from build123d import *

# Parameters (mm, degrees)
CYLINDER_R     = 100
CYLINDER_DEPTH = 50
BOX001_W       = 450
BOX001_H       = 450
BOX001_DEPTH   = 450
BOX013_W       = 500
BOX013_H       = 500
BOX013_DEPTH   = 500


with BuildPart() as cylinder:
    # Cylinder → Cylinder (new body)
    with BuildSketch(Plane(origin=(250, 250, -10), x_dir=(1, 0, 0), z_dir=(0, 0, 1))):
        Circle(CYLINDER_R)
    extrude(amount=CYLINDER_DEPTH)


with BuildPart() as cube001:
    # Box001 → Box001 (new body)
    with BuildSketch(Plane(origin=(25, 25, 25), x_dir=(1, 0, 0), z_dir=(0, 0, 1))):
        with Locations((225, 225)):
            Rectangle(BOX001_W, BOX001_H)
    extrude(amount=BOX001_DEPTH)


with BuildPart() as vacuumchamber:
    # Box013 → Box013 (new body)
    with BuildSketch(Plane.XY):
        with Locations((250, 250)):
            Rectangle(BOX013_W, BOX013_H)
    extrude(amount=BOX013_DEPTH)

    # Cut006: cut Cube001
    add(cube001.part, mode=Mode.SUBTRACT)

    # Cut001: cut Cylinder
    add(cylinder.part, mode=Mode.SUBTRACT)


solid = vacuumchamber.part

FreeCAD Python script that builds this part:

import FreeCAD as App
import Part
import Sketcher
from FreeCAD import Vector

doc = App.newDocument("Part")
body = doc.addObject("PartDesign::Body", "Body")

sketch1 = body.newObject("Sketcher::SketchObject", "Sketch")
sketch1.AttachmentSupport = (doc.getObject("XY_Plane"), [""])
sketch1.MapMode = "FlatFace"
sketch1.AttachmentOffset = App.Placement(Vector(0, 0, -10), App.Rotation())
sketch1.addGeometry(Part.Circle(Vector(250, 250, 0), Vector(0, 0, 1), 100), False)
sketch1.addConstraint([
    Sketcher.Constraint("Diameter", 0, 200.0),
    Sketcher.Constraint("DistanceX", -1, 1, 0, 3, 250.0),
    Sketcher.Constraint("DistanceY", -1, 1, 0, 3, 250.0),
])
pad1 = body.newObject("PartDesign::Pad", "Pad")
pad1.Profile = sketch1
pad1.Length = 50
body2 = doc.addObject("PartDesign::Body", "Body001")

sketch2 = body2.newObject("Sketcher::SketchObject", "Sketch001")
sketch2.AttachmentSupport = (doc.getObject("XY_Plane001"), [""])
sketch2.MapMode = "FlatFace"
sketch2.AttachmentOffset = App.Placement(Vector(0, 0, 25), App.Rotation())
sketch2.addGeometry([
    Part.LineSegment(Vector(25, 475, 0), Vector(25, 25, 0)),
    Part.LineSegment(Vector(25, 25, 0), Vector(475, 25, 0)),
    Part.LineSegment(Vector(475, 25, 0), Vector(475, 475, 0)),
    Part.LineSegment(Vector(475, 475, 0), Vector(25, 475, 0)),
], False)
sketch2.addConstraint([
    Sketcher.Constraint("Coincident", 0, 2, 1, 1),
    Sketcher.Constraint("Coincident", 1, 2, 2, 1),
    Sketcher.Constraint("Coincident", 2, 2, 3, 1),
    Sketcher.Constraint("Coincident", 3, 2, 0, 1),
    Sketcher.Constraint("Vertical", 0),
    Sketcher.Constraint("Horizontal", 1),
    Sketcher.Constraint("Vertical", 2),
    Sketcher.Constraint("Horizontal", 3),
    Sketcher.Constraint("Equal", 3, 0),
    Sketcher.Constraint("DistanceX", 1, 1, 1, 2, 450.0),
    Sketcher.Constraint("DistanceX", -1, 1, 0, 2, 25.0),
    Sketcher.Constraint("DistanceY", -1, 1, 0, 2, 25.0),
])
pad2 = body2.newObject("PartDesign::Pad", "Pad001")
pad2.Profile = sketch2
pad2.Length = 450
body3 = doc.addObject("PartDesign::Body", "Body002")

sketch3 = body3.newObject("Sketcher::SketchObject", "Sketch002")
sketch3.AttachmentSupport = (doc.getObject("XY_Plane002"), [""])
sketch3.MapMode = "FlatFace"
sketch3.addGeometry([
    Part.LineSegment(Vector(0, 500, 0), Vector(0, 0, 0)),
    Part.LineSegment(Vector(0, 0, 0), Vector(500, 0, 0)),
    Part.LineSegment(Vector(500, 0, 0), Vector(500, 500, 0)),
    Part.LineSegment(Vector(500, 500, 0), Vector(0, 500, 0)),
], False)
sketch3.addConstraint([
    Sketcher.Constraint("Coincident", 0, 2, 1, 1),
    Sketcher.Constraint("Coincident", 1, 2, 2, 1),
    Sketcher.Constraint("Coincident", 2, 2, 3, 1),
    Sketcher.Constraint("Coincident", 3, 2, 0, 1),
    Sketcher.Constraint("Vertical", 0),
    Sketcher.Constraint("Horizontal", 1),
    Sketcher.Constraint("Vertical", 2),
    Sketcher.Constraint("Horizontal", 3),
    Sketcher.Constraint("Coincident", 0, 2, -1, 1),
    Sketcher.Constraint("Equal", 3, 0),
    Sketcher.Constraint("DistanceX", 1, 1, 1, 2, 500.0),
])
pad3 = body3.newObject("PartDesign::Pad", "Pad002")
pad3.Profile = sketch3
pad3.Length = 500
doc.recompute()

boolean = body3.newObject("PartDesign::Boolean", "Boolean")
boolean.Type = "Cut"
boolean.addObjects([body2])
doc.recompute()

boolean2 = body3.newObject("PartDesign::Boolean", "Boolean001")
boolean2.Type = "Cut"
boolean2.addObjects([body])

doc.recompute()
